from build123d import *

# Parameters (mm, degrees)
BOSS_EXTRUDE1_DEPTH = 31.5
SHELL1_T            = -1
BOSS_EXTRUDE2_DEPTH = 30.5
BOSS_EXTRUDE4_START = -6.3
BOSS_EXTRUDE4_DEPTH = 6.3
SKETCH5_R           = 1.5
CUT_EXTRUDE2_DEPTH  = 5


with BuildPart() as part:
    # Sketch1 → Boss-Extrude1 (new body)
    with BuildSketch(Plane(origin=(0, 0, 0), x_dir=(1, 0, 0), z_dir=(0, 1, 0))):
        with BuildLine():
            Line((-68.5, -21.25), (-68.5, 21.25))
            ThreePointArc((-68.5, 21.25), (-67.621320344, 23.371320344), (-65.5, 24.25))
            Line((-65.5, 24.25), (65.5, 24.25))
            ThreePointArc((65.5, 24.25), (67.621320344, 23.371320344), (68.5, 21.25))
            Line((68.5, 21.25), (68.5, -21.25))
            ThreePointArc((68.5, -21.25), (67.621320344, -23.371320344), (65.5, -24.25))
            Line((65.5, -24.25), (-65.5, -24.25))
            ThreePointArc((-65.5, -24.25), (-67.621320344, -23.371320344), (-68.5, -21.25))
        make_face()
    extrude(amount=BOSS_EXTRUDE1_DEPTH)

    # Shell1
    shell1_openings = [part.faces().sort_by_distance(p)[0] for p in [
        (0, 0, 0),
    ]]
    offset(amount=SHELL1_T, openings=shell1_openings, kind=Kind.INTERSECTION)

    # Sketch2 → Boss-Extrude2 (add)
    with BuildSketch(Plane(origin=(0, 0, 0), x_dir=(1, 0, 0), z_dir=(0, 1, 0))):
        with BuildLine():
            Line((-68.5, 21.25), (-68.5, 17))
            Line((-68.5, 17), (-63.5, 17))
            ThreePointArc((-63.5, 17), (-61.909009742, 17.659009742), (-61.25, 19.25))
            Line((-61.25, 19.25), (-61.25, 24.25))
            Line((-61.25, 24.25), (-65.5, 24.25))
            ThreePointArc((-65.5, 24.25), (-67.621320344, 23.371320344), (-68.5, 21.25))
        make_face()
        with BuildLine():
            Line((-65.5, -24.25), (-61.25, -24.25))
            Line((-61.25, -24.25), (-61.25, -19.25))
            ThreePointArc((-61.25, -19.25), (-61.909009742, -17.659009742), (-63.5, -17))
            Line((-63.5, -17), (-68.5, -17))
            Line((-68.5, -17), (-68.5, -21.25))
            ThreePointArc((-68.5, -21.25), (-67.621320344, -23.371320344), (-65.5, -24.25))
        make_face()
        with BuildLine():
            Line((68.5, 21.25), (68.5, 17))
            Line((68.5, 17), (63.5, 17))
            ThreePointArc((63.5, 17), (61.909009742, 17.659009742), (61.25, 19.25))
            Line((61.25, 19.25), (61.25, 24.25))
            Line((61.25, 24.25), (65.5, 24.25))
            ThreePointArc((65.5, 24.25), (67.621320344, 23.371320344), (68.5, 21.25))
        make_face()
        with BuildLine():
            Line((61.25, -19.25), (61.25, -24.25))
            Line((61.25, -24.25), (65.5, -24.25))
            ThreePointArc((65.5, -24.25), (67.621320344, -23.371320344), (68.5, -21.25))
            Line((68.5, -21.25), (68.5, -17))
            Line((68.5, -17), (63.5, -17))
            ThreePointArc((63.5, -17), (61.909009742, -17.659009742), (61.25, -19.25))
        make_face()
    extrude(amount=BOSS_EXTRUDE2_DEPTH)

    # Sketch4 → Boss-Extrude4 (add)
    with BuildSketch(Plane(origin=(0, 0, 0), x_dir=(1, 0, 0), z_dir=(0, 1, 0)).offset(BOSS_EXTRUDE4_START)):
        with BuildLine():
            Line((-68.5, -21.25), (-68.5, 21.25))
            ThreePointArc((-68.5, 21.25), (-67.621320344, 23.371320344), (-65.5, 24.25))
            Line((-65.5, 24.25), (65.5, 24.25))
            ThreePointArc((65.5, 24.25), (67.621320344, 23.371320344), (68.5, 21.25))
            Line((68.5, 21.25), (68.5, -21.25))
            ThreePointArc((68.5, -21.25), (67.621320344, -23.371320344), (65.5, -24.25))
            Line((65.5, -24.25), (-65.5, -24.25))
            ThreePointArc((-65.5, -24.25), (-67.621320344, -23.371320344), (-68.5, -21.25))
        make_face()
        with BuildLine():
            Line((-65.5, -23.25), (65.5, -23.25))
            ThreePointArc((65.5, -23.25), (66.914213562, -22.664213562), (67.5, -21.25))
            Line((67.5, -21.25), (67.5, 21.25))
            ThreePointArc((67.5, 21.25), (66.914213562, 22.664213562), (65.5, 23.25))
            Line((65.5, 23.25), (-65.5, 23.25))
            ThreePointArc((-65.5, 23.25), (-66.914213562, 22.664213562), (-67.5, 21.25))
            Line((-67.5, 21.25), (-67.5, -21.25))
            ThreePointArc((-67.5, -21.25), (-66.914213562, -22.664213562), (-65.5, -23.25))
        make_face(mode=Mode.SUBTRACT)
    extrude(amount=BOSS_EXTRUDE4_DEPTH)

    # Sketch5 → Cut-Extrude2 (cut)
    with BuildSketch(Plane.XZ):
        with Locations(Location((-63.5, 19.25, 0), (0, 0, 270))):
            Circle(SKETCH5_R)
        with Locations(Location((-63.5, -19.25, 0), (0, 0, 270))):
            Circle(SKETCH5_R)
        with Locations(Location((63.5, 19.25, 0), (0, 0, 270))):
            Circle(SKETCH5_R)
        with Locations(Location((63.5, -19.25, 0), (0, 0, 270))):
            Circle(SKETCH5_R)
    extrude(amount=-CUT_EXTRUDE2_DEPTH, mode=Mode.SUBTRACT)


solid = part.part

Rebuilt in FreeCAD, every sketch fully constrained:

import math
import FreeCAD as App
import Part
import Sketcher


def faces_at(feature, points):
    """Names of the faces that lie closest to the given points."""
    faces = feature.Shape.Faces
    near = lambda p: min(range(len(faces)), key=lambda i: faces[i].distToShape(Part.Vertex(*p))[0])
    return sorted({f"Face{near(p) + 1}" for p in points})

doc = App.newDocument("Part")
body = doc.addObject("PartDesign::Body", "Body")

# Sketch on XZ plane
sketch1 = body.newObject("Sketcher::SketchObject", "Sketch")
sketch1.AttachmentSupport = (doc.getObject("XZ_Plane"), [""])
sketch1.MapMode = "FlatFace"
sketch1.addGeometry(Part.LineSegment(App.Vector(-68.5, -21.2, 0), App.Vector(-68.5, 21.2, 0)), False)
sketch1.addGeometry(Part.ArcOfCircle(Part.Circle(App.Vector(-65.5, 21.3, 0), App.Vector(0, 0, 1), 3), math.radians(90), math.radians(180)), False)
sketch1.addGeometry(Part.LineSegment(App.Vector(-65.5, 24.2, 0), App.Vector(65.5, 24.2, 0)), False)
sketch1.addGeometry(Part.ArcOfCircle(Part.Circle(App.Vector(65.5, 21.3, 0), App.Vector(0, 0, 1), 3), math.radians(0), math.radians(90)), False)
sketch1.addGeometry(Part.LineSegment(App.Vector(68.5, 21.2, 0), App.Vector(68.5, -21.2, 0)), False)
sketch1.addGeometry(Part.ArcOfCircle(Part.Circle(App.Vector(65.5, -21.3, 0), App.Vector(0, 0, 1), 3), math.radians(-90), math.radians(0)), False)
sketch1.addGeometry(Part.LineSegment(App.Vector(65.5, -24.2, 0), App.Vector(-65.5, -24.2, 0)), False)
sketch1.addGeometry(Part.ArcOfCircle(Part.Circle(App.Vector(-65.5, -21.3, 0), App.Vector(0, 0, 1), 3), math.radians(180), math.radians(270)), False)
sketch1.addConstraint(Sketcher.Constraint("Tangent", 0, 2, 1, 2))
sketch1.addConstraint(Sketcher.Constraint("Tangent", 1, 1, 2, 1))
sketch1.addConstraint(Sketcher.Constraint("Tangent", 2, 2, 3, 2))
sketch1.addConstraint(Sketcher.Constraint("Tangent", 3, 1, 4, 1))
sketch1.addConstraint(Sketcher.Constraint("Tangent", 4, 2, 5, 2))
sketch1.addConstraint(Sketcher.Constraint("Tangent", 5, 1, 6, 1))
sketch1.addConstraint(Sketcher.Constraint("Tangent", 6, 2, 7, 2))
sketch1.addConstraint(Sketcher.Constraint("Tangent", 7, 1, 0, 1))
sketch1.addConstraint(Sketcher.Constraint("Vertical", 0))
sketch1.addConstraint(Sketcher.Constraint("Horizontal", 2))
sketch1.addConstraint(Sketcher.Constraint("Vertical", 4))
sketch1.addConstraint(Sketcher.Constraint("Horizontal", 6))
sketch1.addConstraint(Sketcher.Constraint("Equal", 1, 3))
sketch1.addConstraint(Sketcher.Constraint("Equal", 3, 5))
sketch1.addConstraint(Sketcher.Constraint("Equal", 5, 7))
sketch1.addConstraint(Sketcher.Constraint("Symmetric", 1, 3, 5, 3, -1, 1))
sketch1.addConstraint(Sketcher.Constraint("Radius", 1, 3.0))
sketch1.addConstraint(Sketcher.Constraint("DistanceX", 2, 1, 2, 2, 131.0))
sketch1.addConstraint(Sketcher.Constraint("DistanceY", 0, 1, 0, 2, 42.5))
pad1 = body.newObject("PartDesign::Pad", "Pad")
pad1.Profile = sketch1
pad1.Length = 31.5
pad1.Reversed = True
doc.recompute()

thickness = body.newObject("PartDesign::Thickness", "Thickness")
thickness.Base = (pad1, faces_at(pad1, [(0, 0, 0)]))
thickness.Value = 1
thickness.Reversed = True
thickness.Join = "Intersection"

# Sketch on XZ plane
sketch2 = body.newObject("Sketcher::SketchObject", "Sketch001")
sketch2.AttachmentSupport = (doc.getObject("XZ_Plane"), [""])
sketch2.MapMode = "FlatFace"
sketch2.addGeometry(Part.LineSegment(App.Vector(-68.5, -21.2, 0), App.Vector(-68.5, -17, 0)), False)
sketch2.addGeometry(Part.LineSegment(App.Vector(-68.5, -17, 0), App.Vector(-63.5, -17, 0)), False)
sketch2.addGeometry(Part.ArcOfCircle(Part.Circle(App.Vector(-63.5, -19.2, 0), App.Vector(0, 0, 1), 2.2), math.radians(0), math.radians(90)), False)
sketch2.addGeometry(Part.LineSegment(App.Vector(-61.2, -19.2, 0), App.Vector(-61.2, -24.2, 0)), False)
sketch2.addGeometry(Part.LineSegment(App.Vector(-61.2, -24.2, 0), App.Vector(-65.5, -24.2, 0)), False)
sketch2.addGeometry(Part.ArcOfCircle(Part.Circle(App.Vector(-65.5, -21.3, 0), App.Vector(0, 0, 1), 3), math.radians(180), math.radians(270)), False)
sketch2.addGeometry(Part.LineSegment(App.Vector(-65.5, 24.2, 0), App.Vector(-61.2, 24.2, 0)), False)
sketch2.addGeometry(Part.LineSegment(App.Vector(-61.2, 24.2, 0), App.Vector(-61.2, 19.2, 0)), False)
sketch2.addGeometry(Part.ArcOfCircle(Part.Circle(App.Vector(-63.5, 19.2, 0), App.Vector(0, 0, 1), 2.2), math.radians(-90), math.radians(0)), False)
sketch2.addGeometry(Part.LineSegment(App.Vector(-63.5, 17, 0), App.Vector(-68.5, 17, 0)), False)
sketch2.addGeometry(Part.LineSegment(App.Vector(-68.5, 17, 0), App.Vector(-68.5, 21.2, 0)), False)
sketch2.addGeometry(Part.ArcOfCircle(Part.Circle(App.Vector(-65.5, 21.3, 0), App.Vector(0, 0, 1), 3), math.radians(90), math.radians(180)), False)
sketch2.addGeometry(Part.LineSegment(App.Vector(68.5, -17, 0), App.Vector(68.5, -21.2, 0)), False)
sketch2.addGeometry(Part.ArcOfCircle(Part.Circle(App.Vector(65.5, -21.3, 0), App.Vector(0, 0, 1), 3), math.radians(-90), math.radians(0)), False)
sketch2.addGeometry(Part.LineSegment(App.Vector(65.5, -24.2, 0), App.Vector(61.2, -24.2, 0)), False)
sketch2.addGeometry(Part.LineSegment(App.Vector(61.2, -24.2, 0), App.Vector(61.2, -19.2, 0)), False)
sketch2.addGeometry(Part.ArcOfCircle(Part.Circle(App.Vector(63.5, -19.2, 0), App.Vector(0, 0, 1), 2.2), math.radians(90), math.radians(180)), False)
sketch2.addGeometry(Part.LineSegment(App.Vector(63.5, -17, 0), App.Vector(68.5, -17, 0)), False)
sketch2.addGeometry(Part.LineSegment(App.Vector(61.2, 19.2, 0), App.Vector(61.2, 24.2, 0)), False)
sketch2.addGeometry(Part.LineSegment(App.Vector(61.2, 24.2, 0), App.Vector(65.5, 24.2, 0)), False)
sketch2.addGeometry(Part.ArcOfCircle(Part.Circle(App.Vector(65.5, 21.3, 0), App.Vector(0, 0, 1), 3), math.radians(0), math.radians(90)), False)
sketch2.addGeometry(Part.LineSegment(App.Vector(68.5, 21.2, 0), App.Vector(68.5, 17, 0)), False)
sketch2.addGeometry(Part.LineSegment(App.Vector(68.5, 17, 0), App.Vector(63.5, 17, 0)), False)
sketch2.addGeometry(Part.ArcOfCircle(Part.Circle(App.Vector(63.5, 19.2, 0), App.Vector(0, 0, 1), 2.2), math.radians(180), math.radians(270)), False)
sketch2.addConstraint(Sketcher.Constraint("Coincident", 0, 2, 1, 1))
sketch2.addConstraint(Sketcher.Constraint("Tangent", 1, 2, 2, 2))
sketch2.addConstraint(Sketcher.Constraint("Tangent", 2, 1, 3, 1))
sketch2.addConstraint(Sketcher.Constraint("Coincident", 3, 2, 4, 1))
sketch2.addConstraint(Sketcher.Constraint("Tangent", 4, 2, 5, 2))
sketch2.addConstraint(Sketcher.Constraint("Tangent", 5, 1, 0, 1))
sketch2.addConstraint(Sketcher.Constraint("Coincident", 6, 2, 7, 1))
sketch2.addConstraint(Sketcher.Constraint("Tangent", 7, 2, 8, 2))
sketch2.addConstraint(Sketcher.Constraint("Tangent", 8, 1, 9, 1))
sketch2.addConstraint(Sketcher.Constraint("Coincident", 9, 2, 10, 1))
sketch2.addConstraint(Sketcher.Constraint("Tangent", 10, 2, 11, 2))
sketch2.addConstraint(Sketcher.Constraint("Tangent", 11, 1, 6, 1))
sketch2.addConstraint(Sketcher.Constraint("Tangent", 12, 2, 13, 2))
sketch2.addConstraint(Sketcher.Constraint("Tangent", 13, 1, 14, 1))
sketch2.addConstraint(Sketcher.Constraint("Coincident", 14, 2, 15, 1))
sketch2.addConstraint(Sketcher.Constraint("Tangent", 15, 2, 16, 2))
sketch2.addConstraint(Sketcher.Constraint("Tangent", 16, 1, 17, 1))
sketch2.addConstraint(Sketcher.Constraint("Coincident", 17, 2, 12, 1))
sketch2.addConstraint(Sketcher.Constraint("Coincident", 18, 2, 19, 1))
sketch2.addConstraint(Sketcher.Constraint("Tangent", 19, 2, 20, 2))
sketch2.addConstraint(Sketcher.Constraint("Tangent", 20, 1, 21, 1))
sketch2.addConstraint(Sketcher.Constraint("Coincident", 21, 2, 22, 1))
sketch2.addConstraint(Sketcher.Constraint("Tangent", 22, 2, 23, 2))
sketch2.addConstraint(Sketcher.Constraint("Tangent", 23, 1, 18, 1))
sketch2.addConstraint(Sketcher.Constraint("Vertical", 0))
sketch2.addConstraint(Sketcher.Constraint("Horizontal", 1))
sketch2.addConstraint(Sketcher.Constraint("Vertical", 3))
sketch2.addConstraint(Sketcher.Constraint("Horizontal", 4))
sketch2.addConstraint(Sketcher.Constraint("Horizontal", 6))
sketch2.addConstraint(Sketcher.Constraint("Vertical", 7))
sketch2.addConstraint(Sketcher.Constraint("Horizontal", 9))
sketch2.addConstraint(Sketcher.Constraint("Vertical", 10))
sketch2.addConstraint(Sketcher.Constraint("Vertical", 12))
sketch2.addConstraint(Sketcher.Constraint("Horizontal", 14))
sketch2.addConstraint(Sketcher.Constraint("Vertical", 15))
sketch2.addConstraint(Sketcher.Constraint("Horizontal", 17))
sketch2.addConstraint(Sketcher.Constraint("Vertical", 18))
sketch2.addConstraint(Sketcher.Constraint("Horizontal", 19))
sketch2.addConstraint(Sketcher.Constraint("Vertical", 21))
sketch2.addConstraint(Sketcher.Constraint("Horizontal", 22))
sketch2.addConstraint(Sketcher.Constraint("Equal", 2, 8))
sketch2.addConstraint(Sketcher.Constraint("Equal", 5, 11))
sketch2.addConstraint(Sketcher.Constraint("Equal", 11, 13))
sketch2.addConstraint(Sketcher.Constraint("Equal", 8, 16))
sketch2.addConstraint(Sketcher.Constraint("Equal", 13, 20))
sketch2.addConstraint(Sketcher.Constraint("Equal", 16, 23))
sketch2.addConstraint(Sketcher.Constraint("Symmetric", 11, 3, 13, 3, -1, 1))
sketch2.addConstraint(Sketcher.Constraint("Symmetric", 8, 3, 16, 3, -1, 1))
sketch2.addConstraint(Sketcher.Constraint("Symmetric", 5, 3, 20, 3, -1, 1))
sketch2.addConstraint(Sketcher.Constraint("Symmetric", 2, 3, 23, 3, -1, 1))
sketch2.addConstraint(Sketcher.Constraint("Symmetric", 5, 3, 13, 3, -2))
sketch2.addConstraint(Sketcher.Constraint("Symmetric", 2, 3, 16, 3, -2))
sketch2.addConstraint(Sketcher.Constraint("Equal", 19, 0))
sketch2.addConstraint(Sketcher.Constraint("Radius", 5, 3.0))
sketch2.addConstraint(Sketcher.Constraint("DistanceX", 1, 1, 1, 2, 5.0))
sketch2.addConstraint(Sketcher.Constraint("Radius", 2, 2.25))
sketch2.addConstraint(Sketcher.Constraint("DistanceY", 0, 2, -1, 1, 17.0))
sketch2.addConstraint(Sketcher.Constraint("DistanceX", 2, 3, 13, 3, 129.0))
pad2 = body.newObject("PartDesign::Pad", "Pad001")
pad2.Profile = sketch2
pad2.Length = 30.5
pad2.Reversed = True

# Sketch on XZ plane
sketch3 = body.newObject("Sketcher::SketchObject", "Sketch002")
sketch3.AttachmentSupport = (doc.getObject("XZ_Plane"), [""])
sketch3.MapMode = "FlatFace"
sketch3.AttachmentOffset = App.Placement(App.Vector(0, 0, 6.3), App.Rotation())
sketch3.addGeometry(Part.LineSegment(App.Vector(-68.5, -21.2, 0), App.Vector(-68.5, 21.2, 0)), False)
sketch3.addGeometry(Part.ArcOfCircle(Part.Circle(App.Vector(-65.5, 21.3, 0), App.Vector(0, 0, 1), 3), math.radians(90), math.radians(180)), False)
sketch3.addGeometry(Part.LineSegment(App.Vector(-65.5, 24.2, 0), App.Vector(65.5, 24.2, 0)), False)
sketch3.addGeometry(Part.ArcOfCircle(Part.Circle(App.Vector(65.5, 21.3, 0), App.Vector(0, 0, 1), 3), math.radians(0), math.radians(90)), False)
sketch3.addGeometry(Part.LineSegment(App.Vector(68.5, 21.2, 0), App.Vector(68.5, -21.2, 0)), False)
sketch3.addGeometry(Part.ArcOfCircle(Part.Circle(App.Vector(65.5, -21.3, 0), App.Vector(0, 0, 1), 3), math.radians(-90), math.radians(0)), False)
sketch3.addGeometry(Part.LineSegment(App.Vector(65.5, -24.2, 0), App.Vector(-65.5, -24.2, 0)), False)
sketch3.addGeometry(Part.ArcOfCircle(Part.Circle(App.Vector(-65.5, -21.3, 0), App.Vector(0, 0, 1), 3), math.radians(180), math.radians(270)), False)
sketch3.addGeometry(Part.ArcOfCircle(Part.Circle(App.Vector(-65.5, 21.2, 0), App.Vector(0, 0, 1), 2), math.radians(90), math.radians(180)), False)
sketch3.addGeometry(Part.LineSegment(App.Vector(-67.5, 21.2, 0), App.Vector(-67.5, -21.2, 0)), False)
sketch3.addGeometry(Part.ArcOfCircle(Part.Circle(App.Vector(-65.5, -21.2, 0), App.Vector(0, 0, 1), 2), math.radians(-180), math.radians(-90)), False)
sketch3.addGeometry(Part.LineSegment(App.Vector(-65.5, -23.2, 0), App.Vector(65.5, -23.2, 0)), False)
sketch3.addGeometry(Part.ArcOfCircle(Part.Circle(App.Vector(65.5, -21.2, 0), App.Vector(0, 0, 1), 2), math.radians(-90), math.radians(0)), False)
sketch3.addGeometry(Part.LineSegment(App.Vector(67.5, -21.2, 0), App.Vector(67.5, 21.2, 0)), False)
sketch3.addGeometry(Part.ArcOfCircle(Part.Circle(App.Vector(65.5, 21.2, 0), App.Vector(0, 0, 1), 2), math.radians(0), math.radians(90)), False)
sketch3.addGeometry(Part.LineSegment(App.Vector(65.5, 23.2, 0), App.Vector(-65.5, 23.2, 0)), False)
sketch3.addConstraint(Sketcher.Constraint("Tangent", 0, 2, 1, 2))
sketch3.addConstraint(Sketcher.Constraint("Tangent", 1, 1, 2, 1))
sketch3.addConstraint(Sketcher.Constraint("Tangent", 2, 2, 3, 2))
sketch3.addConstraint(Sketcher.Constraint("Tangent", 3, 1, 4, 1))
sketch3.addConstraint(Sketcher.Constraint("Tangent", 4, 2, 5, 2))
sketch3.addConstraint(Sketcher.Constraint("Tangent", 5, 1, 6, 1))
sketch3.addConstraint(Sketcher.Constraint("Tangent", 6, 2, 7, 2))
sketch3.addConstraint(Sketcher.Constraint("Tangent", 7, 1, 0, 1))
sketch3.addConstraint(Sketcher.Constraint("Tangent", 8, 2, 9, 1))
sketch3.addConstraint(Sketcher.Constraint("Tangent", 9, 2, 10, 1))
sketch3.addConstraint(Sketcher.Constraint("Tangent", 10, 2, 11, 1))
sketch3.addConstraint(Sketcher.Constraint("Tangent", 11, 2, 12, 1))
sketch3.addConstraint(Sketcher.Constraint("Tangent", 12, 2, 13, 1))
sketch3.addConstraint(Sketcher.Constraint("Tangent", 13, 2, 14, 1))
sketch3.addConstraint(Sketcher.Constraint("Tangent", 14, 2, 15, 1))
sketch3.addConstraint(Sketcher.Constraint("Tangent", 15, 2, 8, 1))
sketch3.addConstraint(Sketcher.Constraint("Vertical", 0))
sketch3.addConstraint(Sketcher.Constraint("Horizontal", 2))
sketch3.addConstraint(Sketcher.Constraint("Vertical", 4))
sketch3.addConstraint(Sketcher.Constraint("Horizontal", 6))
sketch3.addConstraint(Sketcher.Constraint("Vertical", 9))
sketch3.addConstraint(Sketcher.Constraint("Horizontal", 11))
sketch3.addConstraint(Sketcher.Constraint("Vertical", 13))
sketch3.addConstraint(Sketcher.Constraint("Horizontal", 15))
sketch3.addConstraint(Sketcher.Constraint("Coincident", 8, 3, 1, 3))
sketch3.addConstraint(Sketcher.Constraint("Coincident", 10, 3, 7, 3))
sketch3.addConstraint(Sketcher.Constraint("Coincident", 12, 3, 5, 3))
sketch3.addConstraint(Sketcher.Constraint("Equal", 1, 3))
sketch3.addConstraint(Sketcher.Constraint("Equal", 3, 5))
sketch3.addConstraint(Sketcher.Constraint("Equal", 5, 7))
sketch3.addConstraint(Sketcher.Constraint("Equal", 12, 14))
sketch3.addConstraint(Sketcher.Constraint("Symmetric", 1, 3, 5, 3, -1, 1))
sketch3.addConstraint(Sketcher.Constraint("Radius", 1, 3.0))
sketch3.addConstraint(Sketcher.Constraint("Radius", 8, 2.0))
sketch3.addConstraint(Sketcher.Constraint("DistanceX", 2, 1, 2, 2, 131.0))
sketch3.addConstraint(Sketcher.Constraint("DistanceY", 0, 1, 0, 2, 42.5))
pad3 = body.newObject("PartDesign::Pad", "Pad002")
pad3.Profile = sketch3
pad3.Length = 6.3
pad3.Reversed = True

# Sketch on XZ plane
sketch4 = body.newObject("Sketcher::SketchObject", "Sketch003")
sketch4.AttachmentSupport = (doc.getObject("XZ_Plane"), [""])
sketch4.MapMode = "FlatFace"
sketch4.addGeometry(Part.Circle(App.Vector(-63.5, 19.2, 0), App.Vector(0, 0, 1), 1.5), False)
sketch4.addGeometry(Part.Circle(App.Vector(-63.5, -19.2, 0), App.Vector(0, 0, 1), 1.5), False)
sketch4.addGeometry(Part.Circle(App.Vector(63.5, 19.2, 0), App.Vector(0, 0, 1), 1.5), False)
sketch4.addGeometry(Part.Circle(App.Vector(63.5, -19.2, 0), App.Vector(0, 0, 1), 1.5), False)
sketch4.addConstraint(Sketcher.Constraint("Equal", 0, 1))
sketch4.addConstraint(Sketcher.Constraint("Equal", 1, 2))
sketch4.addConstraint(Sketcher.Constraint("Equal", 2, 3))
sketch4.addConstraint(Sketcher.Constraint("Symmetric", 1, 3, 2, 3, -1, 1))
sketch4.addConstraint(Sketcher.Constraint("Symmetric", 0, 3, 3, 3, -1, 1))
sketch4.addConstraint(Sketcher.Constraint("Symmetric", 0, 3, 2, 3, -2))
sketch4.addConstraint(Sketcher.Constraint("Diameter", 0, 3.0))
sketch4.addConstraint(Sketcher.Constraint("DistanceX", 0, 3, 2, 3, 127.0))
sketch4.addConstraint(Sketcher.Constraint("DistanceY", 1, 3, 0, 3, 38.5))
pocket1 = body.newObject("PartDesign::Pocket", "Pocket")
pocket1.Profile = sketch4
pocket1.Length = 5

doc.recompute()
